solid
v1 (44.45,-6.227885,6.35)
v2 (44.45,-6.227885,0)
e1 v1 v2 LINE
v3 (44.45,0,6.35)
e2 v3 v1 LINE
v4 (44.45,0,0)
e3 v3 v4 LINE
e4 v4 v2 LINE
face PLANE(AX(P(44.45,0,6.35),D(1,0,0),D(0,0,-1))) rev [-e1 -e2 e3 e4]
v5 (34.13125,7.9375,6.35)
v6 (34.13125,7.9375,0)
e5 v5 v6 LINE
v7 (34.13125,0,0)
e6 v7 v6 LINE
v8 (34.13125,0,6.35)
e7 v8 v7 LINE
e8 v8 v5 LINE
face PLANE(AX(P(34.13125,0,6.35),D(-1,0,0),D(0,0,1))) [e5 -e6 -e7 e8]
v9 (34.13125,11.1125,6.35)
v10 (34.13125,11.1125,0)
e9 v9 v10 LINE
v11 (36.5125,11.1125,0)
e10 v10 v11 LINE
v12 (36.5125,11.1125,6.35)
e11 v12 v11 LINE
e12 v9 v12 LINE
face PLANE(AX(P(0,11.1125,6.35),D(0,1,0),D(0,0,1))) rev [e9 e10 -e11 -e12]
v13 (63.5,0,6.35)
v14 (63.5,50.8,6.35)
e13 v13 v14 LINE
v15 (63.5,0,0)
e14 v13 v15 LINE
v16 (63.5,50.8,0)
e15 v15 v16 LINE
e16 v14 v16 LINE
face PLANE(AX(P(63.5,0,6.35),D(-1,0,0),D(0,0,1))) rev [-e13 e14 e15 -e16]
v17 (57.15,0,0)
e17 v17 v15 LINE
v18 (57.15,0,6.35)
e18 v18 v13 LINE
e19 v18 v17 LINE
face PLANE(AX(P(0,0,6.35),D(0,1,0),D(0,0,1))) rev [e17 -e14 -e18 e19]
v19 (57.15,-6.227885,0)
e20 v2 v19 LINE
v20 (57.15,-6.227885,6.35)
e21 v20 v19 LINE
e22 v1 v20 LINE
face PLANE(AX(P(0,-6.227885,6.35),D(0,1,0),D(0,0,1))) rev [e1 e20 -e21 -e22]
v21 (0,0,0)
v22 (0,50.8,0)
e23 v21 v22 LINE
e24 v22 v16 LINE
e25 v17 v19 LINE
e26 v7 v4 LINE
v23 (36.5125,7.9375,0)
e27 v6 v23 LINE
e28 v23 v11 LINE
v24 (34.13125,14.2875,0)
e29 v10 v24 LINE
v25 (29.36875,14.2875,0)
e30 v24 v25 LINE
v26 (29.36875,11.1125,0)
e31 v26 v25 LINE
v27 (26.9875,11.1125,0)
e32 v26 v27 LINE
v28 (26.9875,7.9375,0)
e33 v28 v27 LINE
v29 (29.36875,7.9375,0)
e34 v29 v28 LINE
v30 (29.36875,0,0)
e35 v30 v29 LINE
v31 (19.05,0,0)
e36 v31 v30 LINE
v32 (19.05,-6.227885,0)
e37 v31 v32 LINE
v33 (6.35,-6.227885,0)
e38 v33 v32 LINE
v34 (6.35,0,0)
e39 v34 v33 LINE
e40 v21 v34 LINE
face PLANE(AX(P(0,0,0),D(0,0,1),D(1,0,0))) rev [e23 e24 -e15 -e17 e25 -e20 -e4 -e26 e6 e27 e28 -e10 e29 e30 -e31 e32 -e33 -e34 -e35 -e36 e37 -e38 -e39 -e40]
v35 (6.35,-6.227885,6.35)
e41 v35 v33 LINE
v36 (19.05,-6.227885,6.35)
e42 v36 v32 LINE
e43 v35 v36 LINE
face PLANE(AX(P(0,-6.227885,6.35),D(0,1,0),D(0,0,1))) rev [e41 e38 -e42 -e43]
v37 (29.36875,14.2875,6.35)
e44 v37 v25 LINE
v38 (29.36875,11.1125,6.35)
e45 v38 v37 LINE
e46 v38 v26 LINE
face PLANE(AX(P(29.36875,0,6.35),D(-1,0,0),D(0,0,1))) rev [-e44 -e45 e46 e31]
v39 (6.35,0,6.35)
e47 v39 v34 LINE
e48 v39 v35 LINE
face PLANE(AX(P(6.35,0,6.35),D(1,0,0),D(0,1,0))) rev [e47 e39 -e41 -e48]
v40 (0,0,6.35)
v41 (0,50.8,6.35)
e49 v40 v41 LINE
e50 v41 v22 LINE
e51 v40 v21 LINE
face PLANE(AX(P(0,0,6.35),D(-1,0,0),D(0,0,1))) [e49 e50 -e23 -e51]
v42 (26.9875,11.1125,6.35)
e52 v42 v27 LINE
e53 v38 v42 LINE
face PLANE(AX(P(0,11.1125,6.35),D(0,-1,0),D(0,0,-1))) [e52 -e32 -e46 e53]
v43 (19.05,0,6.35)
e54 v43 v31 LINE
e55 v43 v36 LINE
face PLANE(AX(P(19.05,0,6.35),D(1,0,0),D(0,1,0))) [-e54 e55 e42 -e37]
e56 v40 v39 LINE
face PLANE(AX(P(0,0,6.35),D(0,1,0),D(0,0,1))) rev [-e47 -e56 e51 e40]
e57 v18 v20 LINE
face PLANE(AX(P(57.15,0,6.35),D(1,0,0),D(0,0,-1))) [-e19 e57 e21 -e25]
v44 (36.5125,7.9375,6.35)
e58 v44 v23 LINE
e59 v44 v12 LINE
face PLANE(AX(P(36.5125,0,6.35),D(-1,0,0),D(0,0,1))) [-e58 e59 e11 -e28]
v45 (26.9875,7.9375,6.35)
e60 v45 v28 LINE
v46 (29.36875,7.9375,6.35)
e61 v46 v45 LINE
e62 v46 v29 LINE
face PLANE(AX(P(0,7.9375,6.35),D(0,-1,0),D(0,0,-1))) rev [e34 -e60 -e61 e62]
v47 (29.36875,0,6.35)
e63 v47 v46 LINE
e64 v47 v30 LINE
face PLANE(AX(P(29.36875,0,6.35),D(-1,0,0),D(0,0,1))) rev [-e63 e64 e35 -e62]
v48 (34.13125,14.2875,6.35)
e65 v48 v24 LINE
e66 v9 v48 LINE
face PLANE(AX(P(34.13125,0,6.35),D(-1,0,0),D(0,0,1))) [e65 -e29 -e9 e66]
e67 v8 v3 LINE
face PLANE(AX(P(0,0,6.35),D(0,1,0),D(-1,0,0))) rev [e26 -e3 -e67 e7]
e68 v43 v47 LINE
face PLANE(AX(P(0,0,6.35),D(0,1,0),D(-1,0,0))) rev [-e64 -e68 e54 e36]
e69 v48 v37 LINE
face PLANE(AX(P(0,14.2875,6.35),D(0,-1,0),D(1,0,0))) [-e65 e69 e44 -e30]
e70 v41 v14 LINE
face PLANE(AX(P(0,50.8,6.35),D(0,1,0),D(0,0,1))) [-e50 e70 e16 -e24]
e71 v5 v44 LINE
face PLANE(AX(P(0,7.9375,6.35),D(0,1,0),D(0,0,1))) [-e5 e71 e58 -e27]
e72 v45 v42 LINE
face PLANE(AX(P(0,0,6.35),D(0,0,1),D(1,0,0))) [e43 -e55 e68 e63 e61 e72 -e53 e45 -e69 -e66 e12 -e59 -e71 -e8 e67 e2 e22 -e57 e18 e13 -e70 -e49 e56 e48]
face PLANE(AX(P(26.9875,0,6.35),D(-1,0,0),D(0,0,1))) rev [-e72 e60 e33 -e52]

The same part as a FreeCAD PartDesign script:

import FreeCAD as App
import Part
import Sketcher
Q = App.Units.Quantity


def add_polygon(sketch, points):
    """Adds a closed chain of lines whose ends are joined by coincident constraints."""
    first, n = sketch.GeometryCount, len(points)
    for a, b in zip(points, points[1:] + points[:1]):
        sketch.addGeometry(Part.LineSegment(App.Vector(*a, 0), App.Vector(*b, 0)), False)
    for i in range(n):
        sketch.addConstraint(Sketcher.Constraint("Coincident", first + i, 2, first + (i + 1) % n, 1))

doc = App.newDocument("Part")
body = doc.addObject("PartDesign::Body", "Body")

# Sketch on XY plane
sketch1 = body.newObject("Sketcher::SketchObject", "Sketch")
sketch1.AttachmentSupport = (doc.getObject("XY_Plane"), [""])
sketch1.MapMode = "FlatFace"
add_polygon(sketch1, [(26.9875, 11.1125), (29.36875, 11.1125), (29.36875, 14.2875), (34.13125, 14.2875), (34.13125, 11.1125), (36.5125, 11.1125), (36.5125, 7.9375), (34.13125, 7.9375), (34.13125, 0), (44.45, 0), (44.45, -6.227885), (57.15, -6.227885), (57.15, 0), (63.5, 0), (63.5, 50.8), (0, 50.8), (0, 0), (6.35, 0), (6.35, -6.227885), (19.05, -6.227885), (19.05, 0), (29.36875, 0), (29.36875, 7.9375), (26.9875, 7.9375)])  # lines 0-23
sketch1.addConstraint(Sketcher.Constraint("Horizontal", 0))
sketch1.addConstraint(Sketcher.Constraint("Vertical", 1))
sketch1.addConstraint(Sketcher.Constraint("Horizontal", 2))
sketch1.addConstraint(Sketcher.Constraint("Vertical", 3))
sketch1.addConstraint(Sketcher.Constraint("Horizontal", 4))
sketch1.addConstraint(Sketcher.Constraint("Vertical", 5))
sketch1.addConstraint(Sketcher.Constraint("Horizontal", 6))
sketch1.addConstraint(Sketcher.Constraint("Vertical", 7))
sketch1.addConstraint(Sketcher.Constraint("Horizontal", 8))
sketch1.addConstraint(Sketcher.Constraint("Vertical", 9))
sketch1.addConstraint(Sketcher.Constraint("Horizontal", 10))
sketch1.addConstraint(Sketcher.Constraint("Vertical", 11))
sketch1.addConstraint(Sketcher.Constraint("Horizontal", 12))
sketch1.addConstraint(Sketcher.Constraint("Vertical", 13))
sketch1.addConstraint(Sketcher.Constraint("Horizontal", 14))
sketch1.addConstraint(Sketcher.Constraint("Vertical", 15))
sketch1.addConstraint(Sketcher.Constraint("Horizontal", 16))
sketch1.addConstraint(Sketcher.Constraint("Vertical", 17))
sketch1.addConstraint(Sketcher.Constraint("Horizontal", 18))
sketch1.addConstraint(Sketcher.Constraint("Vertical", 19))
sketch1.addConstraint(Sketcher.Constraint("Horizontal", 20))
sketch1.addConstraint(Sketcher.Constraint("Vertical", 21))
sketch1.addConstraint(Sketcher.Constraint("Horizontal", 22))
sketch1.addConstraint(Sketcher.Constraint("Vertical", 23))
sketch1.addConstraint(Sketcher.Constraint("Coincident", 15, 2, -1, 1))
sketch1.addConstraint(Sketcher.Constraint("PointOnObject", 7, 2, -1))
sketch1.addConstraint(Sketcher.Constraint("PointOnObject", 11, 2, -1))
sketch1.addConstraint(Sketcher.Constraint("PointOnObject", 19, 2, -1))
sketch1.addConstraint(Sketcher.Constraint("Horizontal", 0, 2, 3, 2))
sketch1.addConstraint(Sketcher.Constraint("Horizontal", 10, 2, 17, 2))
sketch1.addConstraint(Sketcher.Constraint("Horizontal", 6, 2, 21, 2))
sketch1.addConstraint(Sketcher.Constraint("Vertical", 3, 2, 6, 2))
sketch1.addConstraint(Sketcher.Constraint("Vertical", 1, 2, 20, 2))
sketch1.addConstraint(Sketcher.Constraint("Equal", 0, 4))
sketch1.addConstraint(Sketcher.Constraint("Equal", 12, 16))
sketch1.addConstraint(Sketcher.Constraint("Equal", 10, 18))
sketch1.addConstraint(Sketcher.Constraint("Equal", 8, 20))
sketch1.addConstraint(Sketcher.Constraint("Equal", 3, 5))
sketch1.addConstraint(Sketcher.Constraint("DistanceY", 13, 1, 13, 2, Q("2 in")))
sketch1.addConstraint(Sketcher.Constraint("DistanceX", 10, 1, 10, 2, Q("0.5 in")))
sketch1.addConstraint(Sketcher.Constraint("DistanceX", 14, 2, 14, 1, Q("2.5 in")))
sketch1.addConstraint(Sketcher.Constraint("DistanceX", 12, 1, 12, 2, Q("0.25 in")))
sketch1.addConstraint(Sketcher.Constraint("DistanceX", 0, 1, 0, 2, Q("0.09375 in")))
sketch1.addConstraint(Sketcher.Constraint("DistanceX", 2, 1, 2, 2, Q("0.1875 in")))
sketch1.addConstraint(Sketcher.Constraint("DistanceY", 1, 1, 1, 2, Q("0.125 in")))
sketch1.addConstraint(Sketcher.Constraint("DistanceY", 7, 2, 7, 1, Q("0.3125 in")))
sketch1.addConstraint(Sketcher.Constraint("DistanceY", 9, 2, 9, 1, 6.227885))
pad1 = body.newObject("PartDesign::Pad", "Pad")
pad1.Profile = sketch1
pad1.Length = Q("0.25 in")

doc.recompute()
